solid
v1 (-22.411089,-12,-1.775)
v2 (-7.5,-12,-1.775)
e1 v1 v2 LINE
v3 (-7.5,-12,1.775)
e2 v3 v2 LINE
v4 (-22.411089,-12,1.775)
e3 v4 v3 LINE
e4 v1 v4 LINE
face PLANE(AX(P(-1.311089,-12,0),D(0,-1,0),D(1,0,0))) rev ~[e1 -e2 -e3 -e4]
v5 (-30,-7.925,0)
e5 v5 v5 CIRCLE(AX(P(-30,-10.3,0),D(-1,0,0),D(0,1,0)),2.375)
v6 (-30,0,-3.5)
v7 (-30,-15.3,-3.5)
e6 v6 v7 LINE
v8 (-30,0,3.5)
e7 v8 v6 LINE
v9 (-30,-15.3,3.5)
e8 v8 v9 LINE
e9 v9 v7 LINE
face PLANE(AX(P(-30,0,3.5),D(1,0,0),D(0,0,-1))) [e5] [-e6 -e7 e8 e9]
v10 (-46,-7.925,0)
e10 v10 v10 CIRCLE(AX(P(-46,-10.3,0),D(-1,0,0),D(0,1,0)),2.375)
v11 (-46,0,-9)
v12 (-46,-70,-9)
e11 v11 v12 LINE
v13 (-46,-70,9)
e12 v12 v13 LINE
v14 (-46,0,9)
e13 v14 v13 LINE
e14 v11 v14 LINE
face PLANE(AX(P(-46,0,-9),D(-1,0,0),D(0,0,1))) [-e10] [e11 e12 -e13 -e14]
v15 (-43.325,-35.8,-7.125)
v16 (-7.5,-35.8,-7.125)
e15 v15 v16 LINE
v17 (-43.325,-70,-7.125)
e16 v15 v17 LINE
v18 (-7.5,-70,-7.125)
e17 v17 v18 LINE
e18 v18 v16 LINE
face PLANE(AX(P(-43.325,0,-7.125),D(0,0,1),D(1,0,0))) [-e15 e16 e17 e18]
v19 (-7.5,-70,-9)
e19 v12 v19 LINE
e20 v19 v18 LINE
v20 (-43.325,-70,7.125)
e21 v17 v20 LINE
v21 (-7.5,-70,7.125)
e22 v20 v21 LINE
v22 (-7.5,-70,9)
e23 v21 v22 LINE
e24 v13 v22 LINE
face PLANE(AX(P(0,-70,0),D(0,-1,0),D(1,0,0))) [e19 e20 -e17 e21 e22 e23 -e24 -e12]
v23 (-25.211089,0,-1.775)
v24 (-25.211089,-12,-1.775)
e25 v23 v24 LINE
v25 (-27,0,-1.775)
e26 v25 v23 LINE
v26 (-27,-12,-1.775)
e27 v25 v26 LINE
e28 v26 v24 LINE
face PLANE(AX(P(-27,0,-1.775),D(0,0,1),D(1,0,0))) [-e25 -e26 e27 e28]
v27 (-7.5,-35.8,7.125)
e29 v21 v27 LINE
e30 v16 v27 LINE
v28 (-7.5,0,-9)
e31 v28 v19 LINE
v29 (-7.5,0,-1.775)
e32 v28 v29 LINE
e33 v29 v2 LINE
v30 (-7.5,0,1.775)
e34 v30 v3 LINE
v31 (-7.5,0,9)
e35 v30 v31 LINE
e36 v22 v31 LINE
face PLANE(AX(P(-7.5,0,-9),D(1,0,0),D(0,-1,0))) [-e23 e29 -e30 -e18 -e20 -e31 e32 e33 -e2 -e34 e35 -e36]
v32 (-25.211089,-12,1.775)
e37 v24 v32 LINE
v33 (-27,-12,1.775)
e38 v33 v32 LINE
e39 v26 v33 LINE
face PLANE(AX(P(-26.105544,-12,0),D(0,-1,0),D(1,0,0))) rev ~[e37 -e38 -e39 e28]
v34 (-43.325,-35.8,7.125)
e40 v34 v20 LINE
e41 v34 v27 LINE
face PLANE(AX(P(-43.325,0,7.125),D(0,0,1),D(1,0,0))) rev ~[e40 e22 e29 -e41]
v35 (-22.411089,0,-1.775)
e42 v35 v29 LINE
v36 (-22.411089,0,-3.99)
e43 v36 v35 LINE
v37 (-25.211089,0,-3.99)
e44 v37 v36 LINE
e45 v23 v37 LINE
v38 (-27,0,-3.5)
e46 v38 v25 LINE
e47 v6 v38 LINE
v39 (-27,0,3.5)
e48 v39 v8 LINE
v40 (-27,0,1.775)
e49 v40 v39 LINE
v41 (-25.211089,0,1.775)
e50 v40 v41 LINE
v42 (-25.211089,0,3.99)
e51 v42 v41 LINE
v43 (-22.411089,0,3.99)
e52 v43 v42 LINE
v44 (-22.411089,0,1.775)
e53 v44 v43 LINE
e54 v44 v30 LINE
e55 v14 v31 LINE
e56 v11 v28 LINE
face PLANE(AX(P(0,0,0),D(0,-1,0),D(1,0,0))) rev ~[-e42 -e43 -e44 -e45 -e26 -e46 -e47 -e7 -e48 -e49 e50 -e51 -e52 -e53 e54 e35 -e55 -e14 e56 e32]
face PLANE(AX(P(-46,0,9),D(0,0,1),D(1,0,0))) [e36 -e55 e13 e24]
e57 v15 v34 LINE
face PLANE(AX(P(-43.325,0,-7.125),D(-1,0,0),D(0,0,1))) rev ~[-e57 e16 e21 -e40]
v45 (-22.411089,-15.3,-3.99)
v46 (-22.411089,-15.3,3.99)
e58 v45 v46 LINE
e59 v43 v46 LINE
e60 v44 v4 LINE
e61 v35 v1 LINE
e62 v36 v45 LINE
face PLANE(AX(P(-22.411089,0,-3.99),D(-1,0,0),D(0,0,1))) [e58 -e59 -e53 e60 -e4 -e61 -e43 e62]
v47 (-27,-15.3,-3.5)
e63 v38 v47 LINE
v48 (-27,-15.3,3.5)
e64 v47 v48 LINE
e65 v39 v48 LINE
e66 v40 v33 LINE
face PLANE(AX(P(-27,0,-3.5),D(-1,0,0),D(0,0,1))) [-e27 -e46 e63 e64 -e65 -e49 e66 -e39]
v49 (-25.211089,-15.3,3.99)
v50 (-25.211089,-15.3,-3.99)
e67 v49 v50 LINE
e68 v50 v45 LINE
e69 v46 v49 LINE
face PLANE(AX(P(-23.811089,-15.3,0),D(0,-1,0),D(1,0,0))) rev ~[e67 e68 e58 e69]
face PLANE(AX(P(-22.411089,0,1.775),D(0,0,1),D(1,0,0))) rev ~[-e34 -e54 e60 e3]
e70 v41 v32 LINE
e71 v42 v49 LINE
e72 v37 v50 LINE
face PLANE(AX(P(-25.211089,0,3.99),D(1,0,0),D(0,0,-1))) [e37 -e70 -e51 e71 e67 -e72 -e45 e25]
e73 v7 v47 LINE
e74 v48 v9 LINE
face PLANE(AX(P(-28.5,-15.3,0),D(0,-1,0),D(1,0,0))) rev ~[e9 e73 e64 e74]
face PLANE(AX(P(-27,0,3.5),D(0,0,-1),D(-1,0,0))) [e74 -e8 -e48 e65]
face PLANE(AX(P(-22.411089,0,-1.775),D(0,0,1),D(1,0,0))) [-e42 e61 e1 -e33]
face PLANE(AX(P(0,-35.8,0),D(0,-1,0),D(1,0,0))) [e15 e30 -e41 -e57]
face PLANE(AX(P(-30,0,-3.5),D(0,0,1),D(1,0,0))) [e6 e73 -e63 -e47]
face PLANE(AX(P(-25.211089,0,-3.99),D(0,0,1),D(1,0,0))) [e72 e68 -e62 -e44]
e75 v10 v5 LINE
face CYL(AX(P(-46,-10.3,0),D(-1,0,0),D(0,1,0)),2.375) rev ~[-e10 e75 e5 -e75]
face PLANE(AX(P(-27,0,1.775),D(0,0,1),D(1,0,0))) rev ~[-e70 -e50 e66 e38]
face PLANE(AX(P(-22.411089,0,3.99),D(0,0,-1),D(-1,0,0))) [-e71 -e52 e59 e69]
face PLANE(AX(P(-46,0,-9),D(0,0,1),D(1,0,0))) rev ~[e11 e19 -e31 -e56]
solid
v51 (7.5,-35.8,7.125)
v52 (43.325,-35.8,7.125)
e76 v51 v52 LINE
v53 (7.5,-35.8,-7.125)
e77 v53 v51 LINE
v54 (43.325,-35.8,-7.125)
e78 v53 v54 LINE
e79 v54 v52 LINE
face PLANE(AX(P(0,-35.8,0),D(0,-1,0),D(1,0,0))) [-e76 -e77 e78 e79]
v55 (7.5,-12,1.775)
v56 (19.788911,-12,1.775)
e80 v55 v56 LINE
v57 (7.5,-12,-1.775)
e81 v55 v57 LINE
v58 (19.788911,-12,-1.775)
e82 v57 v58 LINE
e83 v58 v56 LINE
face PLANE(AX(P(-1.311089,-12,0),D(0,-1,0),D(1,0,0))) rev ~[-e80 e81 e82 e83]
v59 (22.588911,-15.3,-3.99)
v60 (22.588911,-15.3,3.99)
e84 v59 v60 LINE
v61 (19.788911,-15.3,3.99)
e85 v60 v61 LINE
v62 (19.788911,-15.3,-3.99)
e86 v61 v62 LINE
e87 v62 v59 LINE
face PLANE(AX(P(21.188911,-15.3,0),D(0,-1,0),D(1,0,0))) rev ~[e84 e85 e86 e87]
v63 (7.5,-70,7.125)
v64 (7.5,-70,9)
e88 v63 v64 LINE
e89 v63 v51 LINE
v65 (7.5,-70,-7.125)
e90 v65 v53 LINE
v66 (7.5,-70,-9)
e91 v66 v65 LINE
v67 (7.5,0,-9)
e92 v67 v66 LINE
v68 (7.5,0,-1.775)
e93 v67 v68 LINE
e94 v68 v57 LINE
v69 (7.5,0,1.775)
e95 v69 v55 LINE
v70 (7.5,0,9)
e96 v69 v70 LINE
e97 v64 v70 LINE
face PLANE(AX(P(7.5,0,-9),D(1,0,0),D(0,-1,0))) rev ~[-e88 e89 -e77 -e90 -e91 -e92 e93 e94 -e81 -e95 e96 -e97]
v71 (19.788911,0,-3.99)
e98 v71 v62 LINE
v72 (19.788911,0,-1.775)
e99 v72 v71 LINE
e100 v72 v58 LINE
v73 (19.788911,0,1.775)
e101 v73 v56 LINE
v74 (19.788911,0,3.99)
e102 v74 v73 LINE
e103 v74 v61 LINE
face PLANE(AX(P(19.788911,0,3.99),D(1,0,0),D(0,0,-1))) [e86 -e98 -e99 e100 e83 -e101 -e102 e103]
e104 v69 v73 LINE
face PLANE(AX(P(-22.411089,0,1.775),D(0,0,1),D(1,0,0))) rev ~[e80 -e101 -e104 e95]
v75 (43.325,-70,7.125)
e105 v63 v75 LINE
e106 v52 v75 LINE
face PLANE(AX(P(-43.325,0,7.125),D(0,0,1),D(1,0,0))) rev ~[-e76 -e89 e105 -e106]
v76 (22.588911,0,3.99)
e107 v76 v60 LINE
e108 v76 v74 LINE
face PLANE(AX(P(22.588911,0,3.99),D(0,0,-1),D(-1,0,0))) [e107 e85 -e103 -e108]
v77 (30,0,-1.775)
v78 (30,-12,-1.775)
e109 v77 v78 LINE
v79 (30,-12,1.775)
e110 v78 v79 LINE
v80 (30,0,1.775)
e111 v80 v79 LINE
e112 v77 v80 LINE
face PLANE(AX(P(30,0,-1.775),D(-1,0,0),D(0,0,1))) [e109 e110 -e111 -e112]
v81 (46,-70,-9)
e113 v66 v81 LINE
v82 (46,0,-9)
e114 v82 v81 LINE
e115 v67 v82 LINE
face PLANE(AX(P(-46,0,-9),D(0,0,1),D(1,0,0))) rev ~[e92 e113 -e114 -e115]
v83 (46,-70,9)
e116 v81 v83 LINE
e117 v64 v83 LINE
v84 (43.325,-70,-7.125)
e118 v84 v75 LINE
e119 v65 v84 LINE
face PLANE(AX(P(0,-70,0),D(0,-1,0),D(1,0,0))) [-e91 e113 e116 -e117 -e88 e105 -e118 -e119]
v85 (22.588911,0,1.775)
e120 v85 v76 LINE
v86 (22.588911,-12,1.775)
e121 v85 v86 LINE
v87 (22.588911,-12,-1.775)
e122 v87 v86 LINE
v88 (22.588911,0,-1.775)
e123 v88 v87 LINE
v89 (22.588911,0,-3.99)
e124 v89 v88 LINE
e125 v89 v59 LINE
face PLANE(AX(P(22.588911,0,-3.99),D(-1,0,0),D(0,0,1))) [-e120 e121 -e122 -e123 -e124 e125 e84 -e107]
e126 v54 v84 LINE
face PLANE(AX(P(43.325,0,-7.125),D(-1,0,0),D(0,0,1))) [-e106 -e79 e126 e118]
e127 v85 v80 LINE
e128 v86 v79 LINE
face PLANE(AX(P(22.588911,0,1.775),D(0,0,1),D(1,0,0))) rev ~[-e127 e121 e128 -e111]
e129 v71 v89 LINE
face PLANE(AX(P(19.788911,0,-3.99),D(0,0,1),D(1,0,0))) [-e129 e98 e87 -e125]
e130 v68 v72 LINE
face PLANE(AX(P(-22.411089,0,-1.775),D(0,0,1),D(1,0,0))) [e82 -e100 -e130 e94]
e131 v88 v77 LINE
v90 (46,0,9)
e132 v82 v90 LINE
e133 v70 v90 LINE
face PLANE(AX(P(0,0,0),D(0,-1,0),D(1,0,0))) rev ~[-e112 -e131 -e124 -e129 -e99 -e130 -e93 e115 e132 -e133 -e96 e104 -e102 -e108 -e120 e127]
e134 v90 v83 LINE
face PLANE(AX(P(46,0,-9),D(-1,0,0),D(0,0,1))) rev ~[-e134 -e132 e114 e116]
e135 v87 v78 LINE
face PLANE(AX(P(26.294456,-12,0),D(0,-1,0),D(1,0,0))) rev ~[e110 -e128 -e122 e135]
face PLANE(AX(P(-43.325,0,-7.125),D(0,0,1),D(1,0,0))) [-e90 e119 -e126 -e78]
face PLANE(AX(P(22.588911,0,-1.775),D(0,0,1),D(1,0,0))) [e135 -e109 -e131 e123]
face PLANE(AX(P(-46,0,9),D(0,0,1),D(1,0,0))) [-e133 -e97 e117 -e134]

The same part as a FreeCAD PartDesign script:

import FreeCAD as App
import Part
import Sketcher

V = App.Vector
Q = App.Units.Quantity

doc = App.newDocument("Part")
body = doc.addObject("PartDesign::Body", "Body")
body.AllowCompound = True

# Sketch on XZ plane
sketch1 = body.newObject("Sketcher::SketchObject", "Sketch")
sketch1.AttachmentSupport = (doc.getObject("XZ_Plane"), [""])
sketch1.MapMode = "FlatFace"
sketch1.addGeometry([
    Part.LineSegment(V(-46, 9, 0), V(-46, -9, 0)),  # 0
    Part.LineSegment(V(-46, -9, 0), V(46, -9, 0)),  # 1
    Part.LineSegment(V(46, -9, 0), V(46, 9, 0)),  # 2
    Part.LineSegment(V(46, 9, 0), V(-46, 9, 0)),  # 3
    Part.LineSegment(V(43, -7, 0), V(-43, -7, 0)),  # 4
    Part.LineSegment(V(-43, -7, 0), V(-43, 7, 0)),  # 5
    Part.LineSegment(V(-43, 7, 0), V(43, 7, 0)),  # 6
    Part.LineSegment(V(43, 7, 0), V(43, -7, 0)),  # 7
], False)
sketch1.addConstraint([
    Sketcher.Constraint("Coincident", 0, 2, 1, 1),
    Sketcher.Constraint("Coincident", 1, 2, 2, 1),
    Sketcher.Constraint("Coincident", 2, 2, 3, 1),
    Sketcher.Constraint("Coincident", 3, 2, 0, 1),
    Sketcher.Constraint("Coincident", 4, 2, 5, 1),
    Sketcher.Constraint("Coincident", 5, 2, 6, 1),
    Sketcher.Constraint("Coincident", 6, 2, 7, 1),
    Sketcher.Constraint("Coincident", 7, 2, 4, 1),
    Sketcher.Constraint("Vertical", 0),
    Sketcher.Constraint("Horizontal", 1),
    Sketcher.Constraint("Vertical", 2),
    Sketcher.Constraint("Horizontal", 3),
    Sketcher.Constraint("Horizontal", 4),
    Sketcher.Constraint("Vertical", 5),
    Sketcher.Constraint("Horizontal", 6),
    Sketcher.Constraint("Vertical", 7),
    Sketcher.Constraint("Symmetric", 0, 2, 2, 2, -1, 1),
    Sketcher.Constraint("Symmetric", 4, 2, 6, 2, -1, 1),
    Sketcher.Constraint("DistanceX", 1, 1, 1, 2, Q("92 mm")),
    Sketcher.Constraint("DistanceY", 0, 2, 0, 1, Q("18 mm")),
    Sketcher.Constraint("DistanceX", 4, 2, 4, 1, Q("86.65 mm")),
    Sketcher.Constraint("DistanceY", 5, 1, 5, 2, Q("14.25 mm")),
])
pad1 = body.newObject("PartDesign::Pad", "Pad")
pad1.Profile = sketch1
pad1.Length = 70

# Sketch on XZ plane
sketch2 = body.newObject("Sketcher::SketchObject", "Sketch001")
sketch2.AttachmentSupport = (doc.getObject("XZ_Plane"), [""])
sketch2.MapMode = "FlatFace"
sketch2.addGeometry([
    Part.LineSegment(V(-43, 7, 0), V(-43, -7, 0)),
    Part.LineSegment(V(-43, -7, 0), V(43, -7, 0)),
    Part.LineSegment(V(43, -7, 0), V(43, 7, 0)),
    Part.LineSegment(V(43, 7, 0), V(-43, 7, 0)),
], False)
sketch2.addConstraint([
    Sketcher.Constraint("Coincident", 0, 2, 1, 1),
    Sketcher.Constraint("Coincident", 1, 2, 2, 1),
    Sketcher.Constraint("Coincident", 2, 2, 3, 1),
    Sketcher.Constraint("Coincident", 3, 2, 0, 1),
    Sketcher.Constraint("Vertical", 0),
    Sketcher.Constraint("Horizontal", 1),
    Sketcher.Constraint("Vertical", 2),
    Sketcher.Constraint("Horizontal", 3),
    Sketcher.Constraint("Symmetric", 0, 2, 2, 2, -1, 1),
    Sketcher.Constraint("DistanceX", 1, 1, 1, 2, Q("86.65 mm")),
    Sketcher.Constraint("DistanceY", 0, 2, 0, 1, Q("14.25 mm")),
])
pad2 = body.newObject("PartDesign::Pad", "Pad001")
pad2.Profile = sketch2
pad2.Length = 35.8

# Sketch on XZ plane
sketch3 = body.newObject("Sketcher::SketchObject", "Sketch002")
sketch3.AttachmentSupport = (doc.getObject("XZ_Plane"), [""])
sketch3.MapMode = "FlatFace"
sketch3.AttachmentOffset = App.Placement(V(0, 0, 35.8), App.Rotation())
sketch3.addGeometry([
    Part.LineSegment(V(-7, 4, 0), V(-7, -4, 0)),
    Part.LineSegment(V(-7, -4, 0), V(7, -4, 0)),
    Part.LineSegment(V(7, -4, 0), V(7, 4, 0)),
    Part.LineSegment(V(7, 4, 0), V(-7, 4, 0)),
], False)
sketch3.addConstraint([
    Sketcher.Constraint("Coincident", 0, 2, 1, 1),
    Sketcher.Constraint("Coincident", 1, 2, 2, 1),
    Sketcher.Constraint("Coincident", 2, 2, 3, 1),
    Sketcher.Constraint("Coincident", 3, 2, 0, 1),
    Sketcher.Constraint("Vertical", 0),
    Sketcher.Constraint("Horizontal", 1),
    Sketcher.Constraint("Vertical", 2),
    Sketcher.Constraint("Horizontal", 3),
    Sketcher.Constraint("Symmetric", 0, 2, 2, 2, -1, 1),
    Sketcher.Constraint("DistanceX", 1, 1, 1, 2, Q("13.3 mm")),
    Sketcher.Constraint("DistanceY", 0, 2, 0, 1, Q("8.6 mm")),
])
pocket1 = body.newObject("PartDesign::Pocket", "Pocket")
pocket1.Profile = sketch3
pocket1.Length = 22

# Sketch on XZ plane
sketch4 = body.newObject("Sketcher::SketchObject", "Sketch003")
sketch4.AttachmentSupport = (doc.getObject("XZ_Plane"), [""])
sketch4.MapMode = "FlatFace"
sketch4.addGeometry(Part.Circle(V(0, 0, 0), V(0, 0, 1), 2), False)
sketch4.addConstraint([
    Sketcher.Constraint("Coincident", 0, 3, -1, 1),
    Sketcher.Constraint("Diameter", 0, Q("4 mm")),
])
pocket2 = body.newObject("PartDesign::Pocket", "Pocket001")
pocket2.Profile = sketch4
pocket2.Length = 8
pocket2.Reversed = True

# Sketch on XZ plane
sketch5 = body.newObject("Sketcher::SketchObject", "Sketch004")
sketch5.AttachmentSupport = (doc.getObject("XZ_Plane"), [""])
sketch5.MapMode = "FlatFace"
sketch5.AttachmentOffset = App.Placement(V(0, 0, 13.8), App.Rotation())
sketch5.addGeometry([
    Part.LineSegment(V(-5, 3, 0), V(-5, -4, 0)),
    Part.LineSegment(V(-5, -4, 0), V(5, -4, 0)),
    Part.LineSegment(V(5, -4, 0), V(5, 3, 0)),
    Part.LineSegment(V(5, 3, 0), V(-5, 3, 0)),
], False)
sketch5.addConstraint([
    Sketcher.Constraint("Coincident", 0, 2, 1, 1),
    Sketcher.Constraint("Coincident", 1, 2, 2, 1),
    Sketcher.Constraint("Coincident", 2, 2, 3, 1),
    Sketcher.Constraint("Coincident", 3, 2, 0, 1),
    Sketcher.Constraint("Vertical", 0),
    Sketcher.Constraint("Horizontal", 1),
    Sketcher.Constraint("Vertical", 2),
    Sketcher.Constraint("Horizontal", 3),
    Sketcher.Constraint("DistanceX", 1, 1, 1, 2, Q("10.781337 mm")),
    Sketcher.Constraint("DistanceY", 0, 2, 0, 1, Q("6.446478 mm")),
    Sketcher.Constraint("DistanceX", 0, 2, -1, 1, Q("5.390668 mm")),
    Sketcher.Constraint("DistanceY", 0, 2, -1, 1, Q("3.918239 mm")),
])
pocket3 = body.newObject("PartDesign::Pocket", "Pocket002")
pocket3.Profile = sketch5
pocket3.Length = 9.9

# Sketch on XY plane
sketch6 = body.newObject("Sketcher::SketchObject", "Sketch005")
sketch6.AttachmentSupport = (doc.getObject("XY_Plane"), [""])
sketch6.MapMode = "FlatFace"
sketch6.AttachmentOffset = App.Placement(V(0, 0, -9), App.Rotation())
sketch6.addGeometry([
    Part.LineSegment(V(-8, -70, 0), V(-8, 0, 0)),
    Part.LineSegment(V(-8, 0, 0), V(8, 0, 0)),
    Part.LineSegment(V(8, 0, 0), V(8, -70, 0)),
    Part.LineSegment(V(8, -70, 0), V(-8, -70, 0)),
], False)
sketch6.addConstraint([
    Sketcher.Constraint("Coincident", 0, 2, 1, 1),
    Sketcher.Constraint("Coincident", 1, 2, 2, 1),
    Sketcher.Constraint("Coincident", 2, 2, 3, 1),
    Sketcher.Constraint("Coincident", 3, 2, 0, 1),
    Sketcher.Constraint("Vertical", 0),
    Sketcher.Constraint("Horizontal", 1),
    Sketcher.Constraint("Vertical", 2),
    Sketcher.Constraint("Horizontal", 3),
    Sketcher.Constraint("Symmetric", 0, 2, 1, 2, -1, 1),
    Sketcher.Constraint("DistanceX", 1, 1, 1, 2, Q("15 mm")),
    Sketcher.Constraint("DistanceY", 0, 1, 0, 2, Q("70 mm")),
])
pocket4 = body.newObject("PartDesign::Pocket", "Pocket003")
pocket4.Profile = sketch6
pocket4.Length = 24.4
pocket4.Reversed = True

# Sketch on XZ plane
sketch7 = body.newObject("Sketcher::SketchObject", "Sketch006")
sketch7.AttachmentSupport = (doc.getObject("XZ_Plane"), [""])
sketch7.MapMode = "FlatFace"
sketch7.addGeometry([
    Part.LineSegment(V(22.6, 1.8, 0), V(22.6, -1.8, 0)),  # 0
    Part.LineSegment(V(22.6, -1.8, 0), V(30, -1.8, 0)),  # 1
    Part.LineSegment(V(30, -1.8, 0), V(30, 1.8, 0)),  # 2
    Part.LineSegment(V(30, 1.8, 0), V(22.6, 1.8, 0)),  # 3
    Part.LineSegment(V(-22.4, 1.8, 0), V(-22.4, -1.8, 0)),  # 4
    Part.LineSegment(V(-22.4, -1.8, 0), V(19.8, -1.8, 0)),  # 5
    Part.LineSegment(V(19.8, -1.8, 0), V(19.8, 1.8, 0)),  # 6
    Part.LineSegment(V(19.8, 1.8, 0), V(-22.4, 1.8, 0)),  # 7
    Part.LineSegment(V(-27, 1.8, 0), V(-27, -1.8, 0)),  # 8
    Part.LineSegment(V(-27, -1.8, 0), V(-25.2, -1.8, 0)),  # 9
    Part.LineSegment(V(-25.2, -1.8, 0), V(-25.2, 1.8, 0)),  # 10
    Part.LineSegment(V(-25.2, 1.8, 0), V(-27, 1.8, 0)),  # 11
], False)
sketch7.addConstraint([
    Sketcher.Constraint("Coincident", 0, 2, 1, 1),
    Sketcher.Constraint("Coincident", 1, 2, 2, 1),
    Sketcher.Constraint("Coincident", 2, 2, 3, 1),
    Sketcher.Constraint("Coincident", 3, 2, 0, 1),
    Sketcher.Constraint("Coincident", 4, 2, 5, 1),
    Sketcher.Constraint("Coincident", 5, 2, 6, 1),
    Sketcher.Constraint("Coincident", 6, 2, 7, 1),
    Sketcher.Constraint("Coincident", 7, 2, 4, 1),
    Sketcher.Constraint("Coincident", 8, 2, 9, 1),
    Sketcher.Constraint("Coincident", 9, 2, 10, 1),
    Sketcher.Constraint("Coincident", 10, 2, 11, 1),
    Sketcher.Constraint("Coincident", 11, 2, 8, 1),
    Sketcher.Constraint("Vertical", 0),
    Sketcher.Constraint("Horizontal", 1),
    Sketcher.Constraint("Vertical", 2),
    Sketcher.Constraint("Horizontal", 3),
    Sketcher.Constraint("Vertical", 4),
    Sketcher.Constraint("Horizontal", 5),
    Sketcher.Constraint("Vertical", 6),
    Sketcher.Constraint("Horizontal", 7),
    Sketcher.Constraint("Vertical", 8),
    Sketcher.Constraint("Horizontal", 9),
    Sketcher.Constraint("Vertical", 10),
    Sketcher.Constraint("Horizontal", 11),
    Sketcher.Constraint("Horizontal", 1, 2, 4, 2),
    Sketcher.Constraint("Horizontal", 3, 2, 6, 2),
    Sketcher.Constraint("Horizontal", 5, 2, 8, 2),
    Sketcher.Constraint("Horizontal", 7, 2, 10, 2),
    Sketcher.Constraint("DistanceX", 5, 1, 5, 2, Q("42.2 mm")),
    Sketcher.Constraint("DistanceX", -1, 1, 1, 2, Q("30 mm")),
    Sketcher.Constraint("DistanceX", 8, 2, -1, 1, Q("27 mm")),
    Sketcher.Constraint("DistanceX", 4, 2, 0, 2, Q("45 mm")),
    Sketcher.Constraint("DistanceX", 9, 2, 5, 2, Q("45 mm")),
    Sketcher.Constraint("DistanceY", 0, 2, 0, 1, Q("3.55 mm")),
    Sketcher.Constraint("DistanceY", 0, 2, -1, 1, Q("1.775 mm")),
    Sketcher.Constraint("DistanceX", 1, 1, 1, 2, Q("7.411089 mm")),
])
pocket5 = body.newObject("PartDesign::Pocket", "Pocket004")
pocket5.Profile = sketch7
pocket5.Length = 12
pocket5.Reversed = True

# Sketch on XZ plane
sketch8 = body.newObject("Sketcher::SketchObject", "Sketch007")
sketch8.AttachmentSupport = (doc.getObject("XZ_Plane"), [""])
sketch8.MapMode = "FlatFace"
sketch8.addGeometry([
    Part.LineSegment(V(19.8, -4, 0), V(22.6, -4, 0)),  # 0
    Part.LineSegment(V(22.6, -4, 0), V(22.6, 4, 0)),  # 1
    Part.LineSegment(V(22.6, 4, 0), V(19.8, 4, 0)),  # 2
    Part.LineSegment(V(19.8, 4, 0), V(19.8, -4, 0)),  # 3
    Part.LineSegment(V(-25.2, -4, 0), V(-22.4, -4, 0)),  # 4
    Part.LineSegment(V(-22.4, -4, 0), V(-22.4, 4, 0)),  # 5
    Part.LineSegment(V(-22.4, 4, 0), V(-25.2, 4, 0)),  # 6
    Part.LineSegment(V(-25.2, 4, 0), V(-25.2, -4, 0)),  # 7
    Part.LineSegment(V(-27, -3.5, 0), V(-27, 3.5, 0)),  # 8
    Part.LineSegment(V(-27, 3.5, 0), V(-30, 3.5, 0)),  # 9
    Part.LineSegment(V(-30, 3.5, 0), V(-30, -3.5, 0)),  # 10
    Part.LineSegment(V(-30, -3.5, 0), V(-27, -3.5, 0)),  # 11
], False)
sketch8.addConstraint([
    Sketcher.Constraint("Coincident", 0, 2, 1, 1),
    Sketcher.Constraint("Coincident", 1, 2, 2, 1),
    Sketcher.Constraint("Coincident", 2, 2, 3, 1),
    Sketcher.Constraint("Coincident", 3, 2, 0, 1),
    Sketcher.Constraint("Coincident", 4, 2, 5, 1),
    Sketcher.Constraint("Coincident", 5, 2, 6, 1),
    Sketcher.Constraint("Coincident", 6, 2, 7, 1),
    Sketcher.Constraint("Coincident", 7, 2, 4, 1),
    Sketcher.Constraint("Coincident", 8, 2, 9, 1),
    Sketcher.Constraint("Coincident", 9, 2, 10, 1),
    Sketcher.Constraint("Coincident", 10, 2, 11, 1),
    Sketcher.Constraint("Coincident", 11, 2, 8, 1),
    Sketcher.Constraint("Horizontal", 0),
    Sketcher.Constraint("Vertical", 1),
    Sketcher.Constraint("Horizontal", 2),
    Sketcher.Constraint("Vertical", 3),
    Sketcher.Constraint("Horizontal", 4),
    Sketcher.Constraint("Vertical", 5),
    Sketcher.Constraint("Horizontal", 6),
    Sketcher.Constraint("Vertical", 7),
    Sketcher.Constraint("Vertical", 8),
    Sketcher.Constraint("Horizontal", 9),
    Sketcher.Constraint("Vertical", 10),
    Sketcher.Constraint("Horizontal", 11),
    Sketcher.Constraint("Horizontal", 3, 2, 4, 2),
    Sketcher.Constraint("Horizontal", 2, 2, 5, 2),
    Sketcher.Constraint("Equal", 2, 4),
    Sketcher.Constraint("DistanceX", 9, 2, 9, 1, Q("3 mm")),
    Sketcher.Constraint("DistanceY", 8, 1, 8, 2, Q("7 mm")),
    Sketcher.Constraint("DistanceX", 0, 1, 0, 2, Q("2.8 mm")),
    Sketcher.Constraint("DistanceX", 8, 2, -1, 1, Q("27 mm")),
    Sketcher.Constraint("DistanceX", 4, 2, 0, 2, Q("45 mm")),
    Sketcher.Constraint("DistanceY", 1, 1, 1, 2, Q("7.98 mm")),
    Sketcher.Constraint("DistanceY", -1, 1, 8, 2, Q("3.5 mm")),
    Sketcher.Constraint("DistanceY", 0, 2, -1, 1, Q("3.99 mm")),
    Sketcher.Constraint("DistanceX", -1, 1, 0, 2, Q("22.588911 mm")),
])
pocket6 = body.newObject("PartDesign::Pocket", "Pocket005")
pocket6.Profile = sketch8
pocket6.Length = 15.3
pocket6.Reversed = True

# Sketch on YZ plane
sketch9 = body.newObject("Sketcher::SketchObject", "Sketch008")
sketch9.AttachmentSupport = (doc.getObject("YZ_Plane"), [""])
sketch9.MapMode = "FlatFace"
sketch9.AttachmentOffset = App.Placement(V(0, 0, -46), App.Rotation())
sketch9.addGeometry(Part.Circle(V(-10.3, 0, 0), V(0, 0, 1), 2.4), False)
sketch9.addConstraint([
    Sketcher.Constraint("PointOnObject", 0, 3, -1),
    Sketcher.Constraint("Diameter", 0, Q("4.75 mm")),
    Sketcher.Constraint("DistanceX", 0, 3, -1, 1, Q("10.3 mm")),
])
pocket7 = body.newObject("PartDesign::Pocket", "Pocket006")
pocket7.Profile = sketch9
pocket7.Length = 16.6
pocket7.Reversed = True

doc.recompute()
